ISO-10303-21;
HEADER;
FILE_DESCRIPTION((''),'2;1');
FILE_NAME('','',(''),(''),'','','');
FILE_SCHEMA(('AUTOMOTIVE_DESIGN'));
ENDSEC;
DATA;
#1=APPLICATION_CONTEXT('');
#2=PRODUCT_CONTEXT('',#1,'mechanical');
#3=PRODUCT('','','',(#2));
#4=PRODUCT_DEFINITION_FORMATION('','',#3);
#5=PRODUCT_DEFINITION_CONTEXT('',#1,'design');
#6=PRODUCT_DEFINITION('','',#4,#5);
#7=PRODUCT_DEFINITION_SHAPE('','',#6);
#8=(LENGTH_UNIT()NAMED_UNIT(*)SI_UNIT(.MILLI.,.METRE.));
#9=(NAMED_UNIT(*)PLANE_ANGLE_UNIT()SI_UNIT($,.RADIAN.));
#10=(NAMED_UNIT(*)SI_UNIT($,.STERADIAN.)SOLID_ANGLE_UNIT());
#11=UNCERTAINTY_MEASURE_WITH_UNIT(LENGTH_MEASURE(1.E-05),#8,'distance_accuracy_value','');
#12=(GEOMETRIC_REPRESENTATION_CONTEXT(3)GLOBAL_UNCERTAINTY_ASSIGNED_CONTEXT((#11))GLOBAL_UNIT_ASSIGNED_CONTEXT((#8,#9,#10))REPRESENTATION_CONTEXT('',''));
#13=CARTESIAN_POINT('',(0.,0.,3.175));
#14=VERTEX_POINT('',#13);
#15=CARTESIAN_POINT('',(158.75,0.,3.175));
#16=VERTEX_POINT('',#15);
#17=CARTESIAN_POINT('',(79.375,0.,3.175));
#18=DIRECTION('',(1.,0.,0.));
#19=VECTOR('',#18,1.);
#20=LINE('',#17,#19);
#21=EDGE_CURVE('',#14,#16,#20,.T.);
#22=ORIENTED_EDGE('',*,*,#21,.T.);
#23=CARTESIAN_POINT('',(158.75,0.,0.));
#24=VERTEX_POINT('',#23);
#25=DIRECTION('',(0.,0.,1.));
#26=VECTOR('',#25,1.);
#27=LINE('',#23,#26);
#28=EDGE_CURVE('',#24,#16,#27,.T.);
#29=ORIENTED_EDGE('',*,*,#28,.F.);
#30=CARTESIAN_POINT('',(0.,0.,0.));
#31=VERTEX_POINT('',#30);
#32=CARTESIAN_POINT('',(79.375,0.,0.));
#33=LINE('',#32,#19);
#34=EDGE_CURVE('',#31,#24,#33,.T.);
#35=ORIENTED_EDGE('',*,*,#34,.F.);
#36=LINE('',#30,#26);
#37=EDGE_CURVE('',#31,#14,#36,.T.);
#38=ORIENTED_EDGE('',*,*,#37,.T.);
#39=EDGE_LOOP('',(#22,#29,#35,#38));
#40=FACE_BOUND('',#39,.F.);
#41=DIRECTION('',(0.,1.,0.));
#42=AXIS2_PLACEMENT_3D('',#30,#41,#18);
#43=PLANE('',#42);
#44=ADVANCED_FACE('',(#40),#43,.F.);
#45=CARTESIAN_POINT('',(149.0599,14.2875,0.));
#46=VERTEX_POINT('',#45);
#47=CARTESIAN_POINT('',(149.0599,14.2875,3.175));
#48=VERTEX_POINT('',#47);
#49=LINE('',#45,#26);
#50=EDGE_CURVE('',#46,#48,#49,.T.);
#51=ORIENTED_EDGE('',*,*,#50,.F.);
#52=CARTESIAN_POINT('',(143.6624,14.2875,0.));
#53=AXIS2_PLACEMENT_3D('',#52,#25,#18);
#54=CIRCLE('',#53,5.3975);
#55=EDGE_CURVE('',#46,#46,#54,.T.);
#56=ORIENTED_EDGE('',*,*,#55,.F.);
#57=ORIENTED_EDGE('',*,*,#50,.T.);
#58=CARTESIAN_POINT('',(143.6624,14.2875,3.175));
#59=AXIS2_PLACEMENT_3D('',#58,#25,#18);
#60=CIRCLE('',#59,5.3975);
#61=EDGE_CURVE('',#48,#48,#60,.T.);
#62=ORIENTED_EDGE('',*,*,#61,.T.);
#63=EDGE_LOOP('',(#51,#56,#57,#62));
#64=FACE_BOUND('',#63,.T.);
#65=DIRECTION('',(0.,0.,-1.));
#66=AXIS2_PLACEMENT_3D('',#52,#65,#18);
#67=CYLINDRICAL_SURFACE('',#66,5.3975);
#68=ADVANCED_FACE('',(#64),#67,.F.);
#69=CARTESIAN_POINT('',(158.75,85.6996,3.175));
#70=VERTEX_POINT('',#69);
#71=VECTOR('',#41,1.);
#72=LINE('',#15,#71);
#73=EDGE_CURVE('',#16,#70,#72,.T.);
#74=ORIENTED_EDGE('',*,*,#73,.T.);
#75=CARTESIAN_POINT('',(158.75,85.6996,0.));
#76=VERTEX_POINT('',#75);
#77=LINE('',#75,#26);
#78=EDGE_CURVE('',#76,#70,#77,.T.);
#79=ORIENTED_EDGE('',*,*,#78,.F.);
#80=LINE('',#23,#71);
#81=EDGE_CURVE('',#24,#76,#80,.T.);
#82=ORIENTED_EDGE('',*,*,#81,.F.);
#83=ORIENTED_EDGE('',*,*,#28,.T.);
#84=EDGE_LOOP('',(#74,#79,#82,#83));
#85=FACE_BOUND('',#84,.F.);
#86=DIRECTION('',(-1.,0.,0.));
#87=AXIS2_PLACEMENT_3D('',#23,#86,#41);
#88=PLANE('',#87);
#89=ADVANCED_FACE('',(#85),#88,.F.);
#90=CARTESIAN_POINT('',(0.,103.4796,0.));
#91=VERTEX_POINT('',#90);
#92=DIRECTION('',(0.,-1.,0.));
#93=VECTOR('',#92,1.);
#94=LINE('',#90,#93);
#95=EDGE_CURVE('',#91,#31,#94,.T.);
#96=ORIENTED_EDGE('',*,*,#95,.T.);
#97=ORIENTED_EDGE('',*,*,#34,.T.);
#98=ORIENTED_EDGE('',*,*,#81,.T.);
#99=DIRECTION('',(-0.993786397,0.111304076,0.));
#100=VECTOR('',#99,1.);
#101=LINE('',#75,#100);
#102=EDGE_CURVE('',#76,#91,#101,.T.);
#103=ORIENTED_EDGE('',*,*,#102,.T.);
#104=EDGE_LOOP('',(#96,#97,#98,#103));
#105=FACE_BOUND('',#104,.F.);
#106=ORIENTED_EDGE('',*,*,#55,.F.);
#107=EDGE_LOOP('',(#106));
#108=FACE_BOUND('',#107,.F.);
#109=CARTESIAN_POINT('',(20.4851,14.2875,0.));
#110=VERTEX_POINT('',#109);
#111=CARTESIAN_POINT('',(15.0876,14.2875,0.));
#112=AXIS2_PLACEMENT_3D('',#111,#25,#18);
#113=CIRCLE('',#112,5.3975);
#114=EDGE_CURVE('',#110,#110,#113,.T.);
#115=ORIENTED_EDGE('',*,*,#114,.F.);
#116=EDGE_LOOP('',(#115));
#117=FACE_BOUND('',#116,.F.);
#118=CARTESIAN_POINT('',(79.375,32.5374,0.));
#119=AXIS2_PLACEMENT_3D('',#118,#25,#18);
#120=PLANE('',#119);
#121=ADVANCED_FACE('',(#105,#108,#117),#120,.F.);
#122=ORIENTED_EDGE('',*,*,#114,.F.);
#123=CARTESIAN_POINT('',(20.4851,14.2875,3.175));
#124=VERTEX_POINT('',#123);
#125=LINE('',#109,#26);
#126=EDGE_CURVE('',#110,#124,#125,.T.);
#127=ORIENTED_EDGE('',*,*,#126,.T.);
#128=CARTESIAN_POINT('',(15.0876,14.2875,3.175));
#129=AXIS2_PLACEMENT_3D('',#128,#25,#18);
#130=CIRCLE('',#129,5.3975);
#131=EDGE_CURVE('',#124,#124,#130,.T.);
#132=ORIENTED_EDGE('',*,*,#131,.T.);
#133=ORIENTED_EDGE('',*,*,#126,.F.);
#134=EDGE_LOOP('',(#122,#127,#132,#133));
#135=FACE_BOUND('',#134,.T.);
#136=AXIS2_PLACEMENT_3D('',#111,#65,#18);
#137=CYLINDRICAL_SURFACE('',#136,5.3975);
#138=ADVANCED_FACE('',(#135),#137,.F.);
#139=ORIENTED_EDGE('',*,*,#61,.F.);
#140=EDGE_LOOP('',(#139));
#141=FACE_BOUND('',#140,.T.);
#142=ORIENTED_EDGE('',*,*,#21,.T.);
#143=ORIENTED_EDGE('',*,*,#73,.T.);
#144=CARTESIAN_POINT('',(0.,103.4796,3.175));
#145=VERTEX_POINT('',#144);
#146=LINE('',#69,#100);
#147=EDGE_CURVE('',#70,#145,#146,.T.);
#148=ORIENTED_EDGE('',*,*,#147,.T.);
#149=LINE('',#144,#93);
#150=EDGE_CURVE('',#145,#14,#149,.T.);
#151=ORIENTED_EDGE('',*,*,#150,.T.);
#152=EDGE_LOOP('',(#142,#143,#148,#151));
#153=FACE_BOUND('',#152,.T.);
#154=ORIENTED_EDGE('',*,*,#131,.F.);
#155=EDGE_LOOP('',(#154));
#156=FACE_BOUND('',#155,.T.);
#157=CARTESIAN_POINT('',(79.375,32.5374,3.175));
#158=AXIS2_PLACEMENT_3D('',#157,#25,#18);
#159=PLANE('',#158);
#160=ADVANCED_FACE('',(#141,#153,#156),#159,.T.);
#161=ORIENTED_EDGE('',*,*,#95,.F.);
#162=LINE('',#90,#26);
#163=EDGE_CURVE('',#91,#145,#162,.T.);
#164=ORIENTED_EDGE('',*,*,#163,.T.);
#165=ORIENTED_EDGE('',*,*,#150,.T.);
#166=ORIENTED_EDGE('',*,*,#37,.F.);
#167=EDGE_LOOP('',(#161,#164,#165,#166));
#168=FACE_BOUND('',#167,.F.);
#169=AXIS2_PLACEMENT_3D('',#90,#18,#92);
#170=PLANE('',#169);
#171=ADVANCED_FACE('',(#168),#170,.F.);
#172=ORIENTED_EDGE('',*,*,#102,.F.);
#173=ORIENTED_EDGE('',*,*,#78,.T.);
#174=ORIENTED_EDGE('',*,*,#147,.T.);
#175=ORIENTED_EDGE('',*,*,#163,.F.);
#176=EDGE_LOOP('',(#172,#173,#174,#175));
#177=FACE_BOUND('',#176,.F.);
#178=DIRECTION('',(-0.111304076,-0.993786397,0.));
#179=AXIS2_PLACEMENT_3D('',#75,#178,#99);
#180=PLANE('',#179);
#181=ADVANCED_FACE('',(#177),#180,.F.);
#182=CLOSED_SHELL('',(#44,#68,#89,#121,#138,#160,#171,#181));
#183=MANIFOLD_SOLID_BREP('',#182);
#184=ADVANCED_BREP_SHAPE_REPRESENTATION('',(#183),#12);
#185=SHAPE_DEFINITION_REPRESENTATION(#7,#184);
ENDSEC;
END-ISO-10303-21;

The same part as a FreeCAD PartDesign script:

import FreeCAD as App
import Part
import Sketcher
Q = App.Units.Quantity


def add_polygon(sketch, points):
    """Adds a closed chain of lines whose ends are joined by coincident constraints."""
    first, n = sketch.GeometryCount, len(points)
    for a, b in zip(points, points[1:] + points[:1]):
        sketch.addGeometry(Part.LineSegment(App.Vector(*a, 0), App.Vector(*b, 0)), False)
    for i in range(n):
        sketch.addConstraint(Sketcher.Constraint("Coincident", first + i, 2, first + (i + 1) % n, 1))

doc = App.newDocument("Part")
params = doc.addObject("Spreadsheet::Sheet", "Params")
for row, (alias, value) in enumerate([
    ("sketch1_diameter", "0.425 in"),
    ("sketch1_width", "6.25 in"),
    ("sketch1_height", "3.374 in"),
    ("pad1_length", "0.125 in"),
], start=1):
    params.set(f"A{row}", alias)
    params.set(f"B{row}", "=" + value)
    params.setAlias(f"B{row}", alias)

body = doc.addObject("PartDesign::Body", "Body")

sketch1 = doc.addObject("Sketcher::SketchObject", "Sketch")
body.addObject(sketch1)
sketch1.AttachmentSupport = (doc.XY_Plane, [""])
sketch1.MapMode = "FlatFace"
add_polygon(sketch1, [(0, 0), (159, 0), (159, 86), (0, 103)])
sketch1.addGeometry(Part.Circle(App.Vector(15, 14, 0), App.Vector(0, 0, 1), 5), False)
sketch1.addGeometry(Part.Circle(App.Vector(144, 14, 0), App.Vector(0, 0, 1), 5), False)
sketch1.addConstraint(Sketcher.Constraint("Horizontal", 0))
sketch1.addConstraint(Sketcher.Constraint("Vertical", 1))
sketch1.addConstraint(Sketcher.Constraint("Vertical", 3))
sketch1.addConstraint(Sketcher.Constraint("Coincident", 3, 2, -1, 1))
sketch1.addConstraint(Sketcher.Constraint("Equal", 4, 5))
sketch1.addConstraint(Sketcher.Constraint("Horizontal", 4, 3, 5, 3))
sketch1.addConstraint(Sketcher.Constraint("Diameter", 4, Q("0.425 in")))
sketch1.addConstraint(Sketcher.Constraint("DistanceX", 0, 1, 0, 2, Q("6.25 in")))
sketch1.addConstraint(Sketcher.Constraint("DistanceY", 1, 2, 2, 2, Q("0.7 in")))
sketch1.addConstraint(Sketcher.Constraint("DistanceY", 1, 1, 1, 2, Q("3.374 in")))
sketch1.addConstraint(Sketcher.Constraint("DistanceX", -1, 1, 4, 3, Q("0.594 in")))
sketch1.addConstraint(Sketcher.Constraint("DistanceY", -1, 1, 4, 3, Q("0.5625 in")))
sketch1.addConstraint(Sketcher.Constraint("DistanceX", -1, 1, 5, 3, Q("5.656 in")))
sketch1.setExpression("Constraints[10]", "Params.sketch1_diameter")
sketch1.setExpression("Constraints[11]", "Params.sketch1_width")
sketch1.setExpression("Constraints[13]", "Params.sketch1_height")
pad1 = doc.addObject("PartDesign::Pad", "Pad")
body.addObject(pad1)
pad1.Profile = sketch1
pad1.setExpression("Length", "Params.pad1_length")

doc.recompute()
